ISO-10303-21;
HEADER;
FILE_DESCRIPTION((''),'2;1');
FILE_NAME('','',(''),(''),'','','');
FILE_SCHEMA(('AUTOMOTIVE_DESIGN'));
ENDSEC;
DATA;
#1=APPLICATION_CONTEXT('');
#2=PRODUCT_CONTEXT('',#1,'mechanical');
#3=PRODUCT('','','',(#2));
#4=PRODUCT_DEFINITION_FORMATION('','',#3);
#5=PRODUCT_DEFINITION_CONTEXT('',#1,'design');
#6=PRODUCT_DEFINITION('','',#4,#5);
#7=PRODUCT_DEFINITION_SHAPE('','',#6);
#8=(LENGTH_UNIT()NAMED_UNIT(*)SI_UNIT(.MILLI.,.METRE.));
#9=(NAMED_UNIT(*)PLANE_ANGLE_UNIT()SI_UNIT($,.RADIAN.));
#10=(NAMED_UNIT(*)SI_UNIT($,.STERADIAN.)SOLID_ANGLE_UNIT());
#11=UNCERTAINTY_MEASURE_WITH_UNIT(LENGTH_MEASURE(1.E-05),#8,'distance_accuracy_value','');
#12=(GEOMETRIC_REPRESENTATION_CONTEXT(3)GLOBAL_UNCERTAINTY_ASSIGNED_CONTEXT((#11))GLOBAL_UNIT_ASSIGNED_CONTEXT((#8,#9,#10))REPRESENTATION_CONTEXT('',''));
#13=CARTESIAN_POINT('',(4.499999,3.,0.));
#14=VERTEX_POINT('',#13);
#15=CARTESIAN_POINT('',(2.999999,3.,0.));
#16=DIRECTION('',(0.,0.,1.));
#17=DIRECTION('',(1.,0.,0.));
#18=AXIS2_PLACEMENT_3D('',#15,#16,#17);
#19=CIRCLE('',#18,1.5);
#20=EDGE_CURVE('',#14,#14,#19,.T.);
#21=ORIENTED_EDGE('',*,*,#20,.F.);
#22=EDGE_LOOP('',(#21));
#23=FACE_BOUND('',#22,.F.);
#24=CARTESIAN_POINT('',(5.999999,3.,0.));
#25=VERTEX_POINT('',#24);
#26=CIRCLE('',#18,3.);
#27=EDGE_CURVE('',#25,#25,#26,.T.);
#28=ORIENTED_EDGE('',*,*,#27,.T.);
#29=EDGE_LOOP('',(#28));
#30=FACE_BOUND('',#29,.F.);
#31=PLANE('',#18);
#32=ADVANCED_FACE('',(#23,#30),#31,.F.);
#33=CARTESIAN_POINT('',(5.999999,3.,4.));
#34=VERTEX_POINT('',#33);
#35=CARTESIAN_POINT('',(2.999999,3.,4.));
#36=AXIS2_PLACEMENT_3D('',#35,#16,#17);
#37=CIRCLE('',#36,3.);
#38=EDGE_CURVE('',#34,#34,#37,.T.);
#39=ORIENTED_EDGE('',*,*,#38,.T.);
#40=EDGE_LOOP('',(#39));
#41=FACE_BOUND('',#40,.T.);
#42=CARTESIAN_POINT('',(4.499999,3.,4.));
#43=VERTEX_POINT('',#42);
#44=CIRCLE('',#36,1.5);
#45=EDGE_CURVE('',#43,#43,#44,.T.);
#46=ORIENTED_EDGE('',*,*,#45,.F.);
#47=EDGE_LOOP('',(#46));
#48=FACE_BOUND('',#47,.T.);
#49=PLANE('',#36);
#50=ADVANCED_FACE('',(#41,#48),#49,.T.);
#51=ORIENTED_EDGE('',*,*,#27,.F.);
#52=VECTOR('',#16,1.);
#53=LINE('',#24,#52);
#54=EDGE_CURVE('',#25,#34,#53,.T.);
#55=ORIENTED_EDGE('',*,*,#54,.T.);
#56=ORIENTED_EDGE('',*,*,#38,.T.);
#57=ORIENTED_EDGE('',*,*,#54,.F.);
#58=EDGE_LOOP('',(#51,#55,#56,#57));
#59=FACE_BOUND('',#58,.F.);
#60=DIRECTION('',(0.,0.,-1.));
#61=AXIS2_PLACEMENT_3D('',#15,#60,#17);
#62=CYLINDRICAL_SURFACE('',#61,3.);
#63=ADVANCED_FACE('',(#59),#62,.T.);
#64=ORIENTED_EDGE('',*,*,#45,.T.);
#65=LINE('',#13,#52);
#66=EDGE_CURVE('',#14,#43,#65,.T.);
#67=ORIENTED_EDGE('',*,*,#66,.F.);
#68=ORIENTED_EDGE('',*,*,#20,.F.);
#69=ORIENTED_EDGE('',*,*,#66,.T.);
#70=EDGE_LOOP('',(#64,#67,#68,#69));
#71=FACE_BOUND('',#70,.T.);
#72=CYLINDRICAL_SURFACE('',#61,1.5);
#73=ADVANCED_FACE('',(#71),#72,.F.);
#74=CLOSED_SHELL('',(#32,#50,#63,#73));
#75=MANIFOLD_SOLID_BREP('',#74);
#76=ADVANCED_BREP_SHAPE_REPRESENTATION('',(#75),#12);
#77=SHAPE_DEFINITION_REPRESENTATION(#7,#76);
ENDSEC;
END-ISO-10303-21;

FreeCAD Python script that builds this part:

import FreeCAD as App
import Part
import Sketcher
from FreeCAD import Vector

doc = App.newDocument("Part")
body = doc.addObject("PartDesign::Body", "Body")

# Sketch on XY plane
sketch1 = body.newObject("Sketcher::SketchObject", "Sketch")
sketch1.AttachmentSupport = (doc.getObject("XY_Plane"), [""])
sketch1.MapMode = "FlatFace"
sketch1.addGeometry([
    Part.Circle(Vector(3, 3, 0), Vector(0, 0, 1), 3),
    Part.Circle(Vector(3, 3, 0), Vector(0, 0, 1), 1.5),
], False)
sketch1.addConstraint([
    Sketcher.Constraint("Coincident", 1, 3, 0, 3),
    Sketcher.Constraint("Diameter", 0, 6.0),
    Sketcher.Constraint("Diameter", 1, 3.0),
    Sketcher.Constraint("DistanceX", -1, 1, 0, 3, 2.999999),
    Sketcher.Constraint("DistanceY", -1, 1, 0, 3, 3.0),
])
pad1 = body.newObject("PartDesign::Pad", "Pad")
pad1.Profile = sketch1
pad1.Length = 4

doc.recompute()
